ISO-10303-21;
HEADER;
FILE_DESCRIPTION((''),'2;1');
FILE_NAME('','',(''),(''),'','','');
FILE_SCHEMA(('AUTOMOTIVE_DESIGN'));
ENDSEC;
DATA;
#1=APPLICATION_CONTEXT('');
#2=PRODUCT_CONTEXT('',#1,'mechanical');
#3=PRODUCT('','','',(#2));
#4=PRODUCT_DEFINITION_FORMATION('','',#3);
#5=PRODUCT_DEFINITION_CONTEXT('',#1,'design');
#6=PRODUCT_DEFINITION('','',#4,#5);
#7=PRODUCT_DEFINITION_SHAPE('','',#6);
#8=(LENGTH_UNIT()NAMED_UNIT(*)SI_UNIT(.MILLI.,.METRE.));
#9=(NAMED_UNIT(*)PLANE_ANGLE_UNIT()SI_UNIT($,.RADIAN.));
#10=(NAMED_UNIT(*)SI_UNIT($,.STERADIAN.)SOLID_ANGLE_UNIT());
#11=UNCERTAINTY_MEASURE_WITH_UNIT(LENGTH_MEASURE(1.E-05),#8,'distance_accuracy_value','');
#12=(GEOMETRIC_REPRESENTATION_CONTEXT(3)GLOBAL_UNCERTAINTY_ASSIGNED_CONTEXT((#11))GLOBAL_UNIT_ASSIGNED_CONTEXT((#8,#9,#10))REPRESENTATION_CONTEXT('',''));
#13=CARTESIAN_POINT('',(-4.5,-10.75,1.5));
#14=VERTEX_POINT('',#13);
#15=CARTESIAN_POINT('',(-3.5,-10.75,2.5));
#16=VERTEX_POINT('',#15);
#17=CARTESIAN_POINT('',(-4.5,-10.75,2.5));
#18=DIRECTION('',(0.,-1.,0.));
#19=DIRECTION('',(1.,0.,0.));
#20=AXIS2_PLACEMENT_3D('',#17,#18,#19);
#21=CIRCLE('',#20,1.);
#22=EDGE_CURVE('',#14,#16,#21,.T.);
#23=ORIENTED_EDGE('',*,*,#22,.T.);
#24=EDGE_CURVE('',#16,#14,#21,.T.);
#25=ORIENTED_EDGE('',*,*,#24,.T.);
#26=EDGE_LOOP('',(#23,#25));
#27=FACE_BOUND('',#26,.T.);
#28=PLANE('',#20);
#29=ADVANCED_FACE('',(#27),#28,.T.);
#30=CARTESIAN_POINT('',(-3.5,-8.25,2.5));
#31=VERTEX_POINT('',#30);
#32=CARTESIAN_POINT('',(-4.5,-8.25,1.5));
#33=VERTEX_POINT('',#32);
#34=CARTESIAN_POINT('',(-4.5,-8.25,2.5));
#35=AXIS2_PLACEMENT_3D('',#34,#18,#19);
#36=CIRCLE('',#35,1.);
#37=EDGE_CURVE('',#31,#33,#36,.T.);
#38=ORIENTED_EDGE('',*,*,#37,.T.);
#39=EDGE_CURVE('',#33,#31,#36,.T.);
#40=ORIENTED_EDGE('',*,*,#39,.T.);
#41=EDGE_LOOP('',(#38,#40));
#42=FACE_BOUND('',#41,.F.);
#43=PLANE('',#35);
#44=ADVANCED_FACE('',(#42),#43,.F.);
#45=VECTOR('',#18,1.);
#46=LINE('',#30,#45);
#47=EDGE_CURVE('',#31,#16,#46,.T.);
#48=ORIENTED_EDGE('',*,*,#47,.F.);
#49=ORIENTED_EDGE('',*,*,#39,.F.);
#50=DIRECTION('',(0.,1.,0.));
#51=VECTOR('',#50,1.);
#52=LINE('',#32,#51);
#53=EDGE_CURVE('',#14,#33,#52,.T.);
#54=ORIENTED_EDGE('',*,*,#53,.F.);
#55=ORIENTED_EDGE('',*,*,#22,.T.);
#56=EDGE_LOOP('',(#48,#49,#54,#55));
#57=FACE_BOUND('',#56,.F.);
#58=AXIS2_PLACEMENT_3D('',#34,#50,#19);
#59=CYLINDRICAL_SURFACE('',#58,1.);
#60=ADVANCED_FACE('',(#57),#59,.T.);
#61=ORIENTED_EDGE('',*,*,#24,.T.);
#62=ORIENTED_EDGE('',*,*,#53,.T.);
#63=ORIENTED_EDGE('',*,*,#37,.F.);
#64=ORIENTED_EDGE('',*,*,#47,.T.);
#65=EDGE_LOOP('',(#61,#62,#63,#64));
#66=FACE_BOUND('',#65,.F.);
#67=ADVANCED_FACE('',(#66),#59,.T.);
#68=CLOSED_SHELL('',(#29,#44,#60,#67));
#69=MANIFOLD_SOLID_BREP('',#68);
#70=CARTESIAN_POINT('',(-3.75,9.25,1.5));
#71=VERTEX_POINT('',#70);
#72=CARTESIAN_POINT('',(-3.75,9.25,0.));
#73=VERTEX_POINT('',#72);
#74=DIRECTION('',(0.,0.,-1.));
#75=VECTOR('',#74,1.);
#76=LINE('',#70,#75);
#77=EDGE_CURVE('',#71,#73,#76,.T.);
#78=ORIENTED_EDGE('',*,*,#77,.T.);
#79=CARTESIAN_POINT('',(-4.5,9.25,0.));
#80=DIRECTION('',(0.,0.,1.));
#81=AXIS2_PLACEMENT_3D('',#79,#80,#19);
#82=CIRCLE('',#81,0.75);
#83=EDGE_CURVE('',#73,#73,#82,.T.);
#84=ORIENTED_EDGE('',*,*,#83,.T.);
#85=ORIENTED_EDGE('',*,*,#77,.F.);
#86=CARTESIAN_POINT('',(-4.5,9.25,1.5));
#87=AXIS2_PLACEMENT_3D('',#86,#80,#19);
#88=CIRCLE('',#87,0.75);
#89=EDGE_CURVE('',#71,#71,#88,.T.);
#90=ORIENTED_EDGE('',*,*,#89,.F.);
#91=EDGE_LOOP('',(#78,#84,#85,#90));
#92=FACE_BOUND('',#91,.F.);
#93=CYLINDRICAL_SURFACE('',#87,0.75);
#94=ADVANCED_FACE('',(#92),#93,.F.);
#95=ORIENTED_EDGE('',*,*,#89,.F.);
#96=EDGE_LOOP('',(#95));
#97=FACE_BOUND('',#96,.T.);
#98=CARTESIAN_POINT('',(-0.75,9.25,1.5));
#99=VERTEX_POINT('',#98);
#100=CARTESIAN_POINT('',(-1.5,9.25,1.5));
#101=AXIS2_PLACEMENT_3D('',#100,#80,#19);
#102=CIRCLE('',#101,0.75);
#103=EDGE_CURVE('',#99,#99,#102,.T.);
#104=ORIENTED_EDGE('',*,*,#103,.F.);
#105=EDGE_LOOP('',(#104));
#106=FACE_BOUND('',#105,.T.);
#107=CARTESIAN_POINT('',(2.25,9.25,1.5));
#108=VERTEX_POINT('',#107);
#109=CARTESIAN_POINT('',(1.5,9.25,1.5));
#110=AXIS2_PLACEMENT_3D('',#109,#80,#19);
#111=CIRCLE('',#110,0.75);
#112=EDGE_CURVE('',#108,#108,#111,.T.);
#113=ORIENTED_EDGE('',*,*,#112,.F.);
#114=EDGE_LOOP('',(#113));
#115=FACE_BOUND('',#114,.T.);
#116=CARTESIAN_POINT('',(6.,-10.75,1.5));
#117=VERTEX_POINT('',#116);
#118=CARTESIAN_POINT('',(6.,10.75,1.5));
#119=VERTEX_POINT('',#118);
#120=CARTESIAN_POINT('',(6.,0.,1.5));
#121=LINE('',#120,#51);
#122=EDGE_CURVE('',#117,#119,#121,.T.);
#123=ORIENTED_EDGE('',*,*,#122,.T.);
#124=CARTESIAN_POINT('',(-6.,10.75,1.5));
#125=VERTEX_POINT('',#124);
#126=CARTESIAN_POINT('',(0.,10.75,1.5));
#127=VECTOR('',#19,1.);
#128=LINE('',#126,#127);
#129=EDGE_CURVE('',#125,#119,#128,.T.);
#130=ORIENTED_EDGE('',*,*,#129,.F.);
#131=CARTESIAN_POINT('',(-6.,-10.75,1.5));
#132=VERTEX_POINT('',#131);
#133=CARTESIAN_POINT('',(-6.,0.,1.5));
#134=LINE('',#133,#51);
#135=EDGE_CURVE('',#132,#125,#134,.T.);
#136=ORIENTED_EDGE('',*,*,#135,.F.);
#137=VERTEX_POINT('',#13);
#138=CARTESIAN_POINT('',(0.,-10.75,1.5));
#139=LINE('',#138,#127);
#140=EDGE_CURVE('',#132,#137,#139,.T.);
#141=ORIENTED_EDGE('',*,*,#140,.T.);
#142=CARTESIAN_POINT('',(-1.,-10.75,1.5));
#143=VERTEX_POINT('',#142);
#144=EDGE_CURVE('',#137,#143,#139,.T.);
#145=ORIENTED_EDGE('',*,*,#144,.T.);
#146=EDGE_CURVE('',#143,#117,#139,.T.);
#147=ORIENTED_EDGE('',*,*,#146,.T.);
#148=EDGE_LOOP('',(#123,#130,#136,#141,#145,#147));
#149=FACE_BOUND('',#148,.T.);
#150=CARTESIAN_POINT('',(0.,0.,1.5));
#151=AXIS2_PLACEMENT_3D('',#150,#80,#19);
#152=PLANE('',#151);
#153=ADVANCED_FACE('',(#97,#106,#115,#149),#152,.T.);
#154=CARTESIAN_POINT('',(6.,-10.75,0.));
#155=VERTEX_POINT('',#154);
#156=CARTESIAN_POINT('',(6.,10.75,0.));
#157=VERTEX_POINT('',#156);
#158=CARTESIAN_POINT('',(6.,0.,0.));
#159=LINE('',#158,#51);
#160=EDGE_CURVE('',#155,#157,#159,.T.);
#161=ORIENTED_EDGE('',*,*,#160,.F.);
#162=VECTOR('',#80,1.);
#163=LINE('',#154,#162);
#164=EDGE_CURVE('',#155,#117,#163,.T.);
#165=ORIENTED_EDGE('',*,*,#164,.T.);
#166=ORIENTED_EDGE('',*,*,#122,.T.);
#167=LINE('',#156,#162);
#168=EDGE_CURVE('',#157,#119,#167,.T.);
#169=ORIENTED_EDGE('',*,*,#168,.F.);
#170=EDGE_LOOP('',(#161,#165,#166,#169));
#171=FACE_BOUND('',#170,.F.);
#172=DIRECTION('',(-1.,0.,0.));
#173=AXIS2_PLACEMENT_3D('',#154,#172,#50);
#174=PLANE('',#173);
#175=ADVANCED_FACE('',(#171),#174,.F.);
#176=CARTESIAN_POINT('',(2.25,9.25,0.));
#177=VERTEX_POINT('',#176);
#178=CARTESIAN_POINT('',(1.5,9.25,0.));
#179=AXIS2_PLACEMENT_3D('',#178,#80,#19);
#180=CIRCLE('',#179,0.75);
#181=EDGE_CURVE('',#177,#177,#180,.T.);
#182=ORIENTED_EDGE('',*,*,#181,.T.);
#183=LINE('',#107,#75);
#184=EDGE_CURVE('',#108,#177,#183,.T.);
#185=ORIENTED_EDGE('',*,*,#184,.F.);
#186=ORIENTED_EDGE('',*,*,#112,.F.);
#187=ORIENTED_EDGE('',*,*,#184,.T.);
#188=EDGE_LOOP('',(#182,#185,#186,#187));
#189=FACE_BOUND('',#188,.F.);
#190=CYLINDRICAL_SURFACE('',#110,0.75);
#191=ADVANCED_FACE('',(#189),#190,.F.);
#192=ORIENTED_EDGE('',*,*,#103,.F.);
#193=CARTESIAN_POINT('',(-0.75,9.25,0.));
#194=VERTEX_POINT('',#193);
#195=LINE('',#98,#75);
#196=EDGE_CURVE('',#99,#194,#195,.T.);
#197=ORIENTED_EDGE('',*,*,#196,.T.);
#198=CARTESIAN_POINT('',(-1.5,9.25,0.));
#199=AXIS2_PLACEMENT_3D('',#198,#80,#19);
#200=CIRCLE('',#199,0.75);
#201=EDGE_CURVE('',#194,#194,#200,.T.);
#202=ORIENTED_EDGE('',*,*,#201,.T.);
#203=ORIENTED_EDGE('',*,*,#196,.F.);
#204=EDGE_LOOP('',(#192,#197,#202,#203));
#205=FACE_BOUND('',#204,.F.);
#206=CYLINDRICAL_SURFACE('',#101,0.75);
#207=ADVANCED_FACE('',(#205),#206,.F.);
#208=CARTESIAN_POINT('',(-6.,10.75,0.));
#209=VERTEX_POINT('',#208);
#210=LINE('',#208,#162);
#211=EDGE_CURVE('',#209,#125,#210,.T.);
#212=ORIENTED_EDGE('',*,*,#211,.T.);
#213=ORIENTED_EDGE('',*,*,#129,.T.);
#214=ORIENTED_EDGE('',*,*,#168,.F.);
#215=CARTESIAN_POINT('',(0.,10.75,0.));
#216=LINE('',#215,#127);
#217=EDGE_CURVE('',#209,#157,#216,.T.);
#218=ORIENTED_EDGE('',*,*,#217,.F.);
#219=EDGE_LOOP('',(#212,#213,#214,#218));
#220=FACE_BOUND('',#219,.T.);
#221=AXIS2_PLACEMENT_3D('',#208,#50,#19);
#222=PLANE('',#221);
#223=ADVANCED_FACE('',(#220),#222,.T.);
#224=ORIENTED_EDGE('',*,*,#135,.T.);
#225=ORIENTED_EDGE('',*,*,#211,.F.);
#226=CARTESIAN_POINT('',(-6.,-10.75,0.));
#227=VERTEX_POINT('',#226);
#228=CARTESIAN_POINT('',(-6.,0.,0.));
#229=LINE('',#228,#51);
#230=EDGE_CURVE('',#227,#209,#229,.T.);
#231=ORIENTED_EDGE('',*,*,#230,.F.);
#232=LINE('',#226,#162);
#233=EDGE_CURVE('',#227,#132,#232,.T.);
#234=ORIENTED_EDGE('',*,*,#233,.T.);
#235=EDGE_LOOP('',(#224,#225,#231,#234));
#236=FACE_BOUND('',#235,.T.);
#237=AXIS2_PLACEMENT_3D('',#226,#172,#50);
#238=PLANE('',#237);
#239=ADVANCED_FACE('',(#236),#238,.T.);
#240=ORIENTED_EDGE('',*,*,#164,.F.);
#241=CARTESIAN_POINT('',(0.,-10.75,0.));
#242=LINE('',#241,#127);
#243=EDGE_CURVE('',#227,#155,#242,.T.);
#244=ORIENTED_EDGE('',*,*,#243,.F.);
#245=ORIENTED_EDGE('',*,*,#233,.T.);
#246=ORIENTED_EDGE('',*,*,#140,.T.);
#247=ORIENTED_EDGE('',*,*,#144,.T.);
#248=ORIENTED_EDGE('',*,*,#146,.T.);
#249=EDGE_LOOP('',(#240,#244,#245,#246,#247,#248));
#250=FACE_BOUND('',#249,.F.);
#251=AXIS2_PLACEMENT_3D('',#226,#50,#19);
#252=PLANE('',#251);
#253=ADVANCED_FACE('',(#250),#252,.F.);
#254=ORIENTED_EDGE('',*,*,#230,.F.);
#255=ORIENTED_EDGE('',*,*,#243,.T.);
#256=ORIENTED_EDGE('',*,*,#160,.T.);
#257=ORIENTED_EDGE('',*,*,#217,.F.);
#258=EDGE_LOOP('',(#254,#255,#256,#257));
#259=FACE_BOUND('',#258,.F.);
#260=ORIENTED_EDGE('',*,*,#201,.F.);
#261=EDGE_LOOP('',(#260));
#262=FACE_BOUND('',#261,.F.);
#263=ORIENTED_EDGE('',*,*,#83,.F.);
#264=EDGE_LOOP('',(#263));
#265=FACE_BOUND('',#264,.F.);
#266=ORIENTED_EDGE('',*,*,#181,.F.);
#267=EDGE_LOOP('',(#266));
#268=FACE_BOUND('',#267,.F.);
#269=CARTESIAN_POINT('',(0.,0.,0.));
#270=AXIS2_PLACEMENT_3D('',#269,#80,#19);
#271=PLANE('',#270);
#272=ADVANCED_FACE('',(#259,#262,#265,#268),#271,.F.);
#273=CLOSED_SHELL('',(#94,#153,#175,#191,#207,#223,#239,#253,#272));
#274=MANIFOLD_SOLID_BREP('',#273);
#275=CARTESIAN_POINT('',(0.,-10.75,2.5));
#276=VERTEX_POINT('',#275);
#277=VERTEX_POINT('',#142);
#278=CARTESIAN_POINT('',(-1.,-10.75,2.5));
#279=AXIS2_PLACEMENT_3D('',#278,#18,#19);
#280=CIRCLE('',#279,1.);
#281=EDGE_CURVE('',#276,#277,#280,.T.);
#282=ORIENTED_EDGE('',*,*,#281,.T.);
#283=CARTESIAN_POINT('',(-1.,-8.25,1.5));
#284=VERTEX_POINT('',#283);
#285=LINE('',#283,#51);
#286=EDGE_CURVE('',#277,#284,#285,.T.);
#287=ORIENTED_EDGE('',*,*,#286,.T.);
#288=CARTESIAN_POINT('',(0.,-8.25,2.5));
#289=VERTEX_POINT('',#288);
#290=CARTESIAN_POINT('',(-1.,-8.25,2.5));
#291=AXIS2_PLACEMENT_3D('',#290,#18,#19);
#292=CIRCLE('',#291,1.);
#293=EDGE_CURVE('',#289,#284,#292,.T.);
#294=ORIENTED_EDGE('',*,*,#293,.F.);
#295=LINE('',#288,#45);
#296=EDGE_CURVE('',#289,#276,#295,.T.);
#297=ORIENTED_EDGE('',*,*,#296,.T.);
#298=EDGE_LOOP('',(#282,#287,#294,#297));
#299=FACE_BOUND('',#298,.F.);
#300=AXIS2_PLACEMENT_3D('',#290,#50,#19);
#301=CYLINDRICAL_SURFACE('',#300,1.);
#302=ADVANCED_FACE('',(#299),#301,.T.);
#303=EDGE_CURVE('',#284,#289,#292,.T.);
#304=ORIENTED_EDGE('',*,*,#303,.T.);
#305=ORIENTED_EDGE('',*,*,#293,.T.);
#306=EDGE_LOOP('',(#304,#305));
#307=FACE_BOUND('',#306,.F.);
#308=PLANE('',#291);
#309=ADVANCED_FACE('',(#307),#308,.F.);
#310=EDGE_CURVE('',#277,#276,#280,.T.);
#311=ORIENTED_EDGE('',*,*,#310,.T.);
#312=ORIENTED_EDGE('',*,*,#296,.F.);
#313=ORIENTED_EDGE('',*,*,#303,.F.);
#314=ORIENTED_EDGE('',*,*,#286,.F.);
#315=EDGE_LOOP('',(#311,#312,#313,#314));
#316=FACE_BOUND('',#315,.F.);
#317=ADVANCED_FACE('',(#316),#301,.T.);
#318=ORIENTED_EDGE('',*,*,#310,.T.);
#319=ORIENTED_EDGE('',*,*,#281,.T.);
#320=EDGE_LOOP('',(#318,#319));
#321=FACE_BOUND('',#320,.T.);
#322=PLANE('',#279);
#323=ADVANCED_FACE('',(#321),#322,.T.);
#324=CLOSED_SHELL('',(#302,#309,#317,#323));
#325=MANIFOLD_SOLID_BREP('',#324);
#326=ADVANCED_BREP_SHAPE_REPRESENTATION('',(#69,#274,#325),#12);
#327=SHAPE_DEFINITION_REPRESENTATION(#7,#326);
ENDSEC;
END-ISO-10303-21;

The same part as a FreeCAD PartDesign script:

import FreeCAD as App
import Part
import Sketcher
from FreeCAD import Vector


def add_polygon(sketch, points):
    """Adds a closed chain of lines whose ends are joined by coincident constraints."""
    first, n = sketch.GeometryCount, len(points)
    for a, b in zip(points, points[1:] + points[:1]):
        sketch.addGeometry(Part.LineSegment(App.Vector(*a, 0), App.Vector(*b, 0)), False)
    for i in range(n):
        sketch.addConstraint(Sketcher.Constraint("Coincident", first + i, 2, first + (i + 1) % n, 1))

doc = App.newDocument("Part")
body = doc.addObject("PartDesign::Body", "Body")
body.AllowCompound = True

# Sketch on XY plane
sketch1 = body.newObject("Sketcher::SketchObject", "Sketch")
sketch1.AttachmentSupport = (doc.getObject("XY_Plane"), [""])
sketch1.MapMode = "FlatFace"
add_polygon(sketch1, [(-6, 10.75), (-6, -10.75), (6, -10.75), (6, 10.75)])  # lines 0-3
sketch1.addConstraint([
    Sketcher.Constraint("Vertical", 0),
    Sketcher.Constraint("Horizontal", 1),
    Sketcher.Constraint("Vertical", 2),
    Sketcher.Constraint("Horizontal", 3),
    Sketcher.Constraint("Symmetric", 0, 2, 2, 2, -1, 1),
    Sketcher.Constraint("DistanceX", 1, 1, 1, 2, 12.0),
    Sketcher.Constraint("DistanceY", 0, 2, 0, 1, 21.5),
])
pad1 = body.newObject("PartDesign::Pad", "Pad")
pad1.Profile = sketch1
pad1.Length = 1.5

# Sketch on XZ plane
sketch2 = body.newObject("Sketcher::SketchObject", "Sketch001")
sketch2.AttachmentSupport = (doc.getObject("XZ_Plane"), [""])
sketch2.MapMode = "FlatFace"
sketch2.AttachmentOffset = App.Placement(Vector(0, 0, 8.25), App.Rotation())
sketch2.addGeometry([
    Part.Circle(Vector(-4.5, 2.5, 0), Vector(0, 0, 1), 1),
    Part.Circle(Vector(-1, 2.5, 0), Vector(0, 0, 1), 1),
], False)
sketch2.addConstraint([
    Sketcher.Constraint("Equal", 0, 1),
    Sketcher.Constraint("Horizontal", 0, 3, 1, 3),
    Sketcher.Constraint("Diameter", 0, 2.0),
    Sketcher.Constraint("DistanceX", 1, 3, -1, 1, 1.0),
    Sketcher.Constraint("DistanceX", 0, 3, -1, 1, 4.5),
    Sketcher.Constraint("DistanceY", -1, 1, 0, 3, 2.5),
])
pad2 = body.newObject("PartDesign::Pad", "Pad001")
pad2.Profile = sketch2
pad2.Length = 2.5

# Sketch on XY plane
sketch3 = body.newObject("Sketcher::SketchObject", "Sketch002")
sketch3.AttachmentSupport = (doc.getObject("XY_Plane"), [""])
sketch3.MapMode = "FlatFace"
sketch3.AttachmentOffset = App.Placement(Vector(0, 0, 1.5), App.Rotation())
sketch3.addGeometry([
    Part.Circle(Vector(-4.5, 9.25, 0), Vector(0, 0, 1), 0.75),
    Part.Circle(Vector(-1.5, 9.25, 0), Vector(0, 0, 1), 0.75),
    Part.Circle(Vector(1.5, 9.25, 0), Vector(0, 0, 1), 0.75),
], False)
sketch3.addConstraint([
    Sketcher.Constraint("Equal", 0, 1),
    Sketcher.Constraint("Equal", 1, 2),
    Sketcher.Constraint("Symmetric", 1, 3, 2, 3, -2),
    Sketcher.Constraint("Horizontal", 0, 3, 1, 3),
    Sketcher.Constraint("Diameter", 0, 1.5),
    Sketcher.Constraint("DistanceX", 0, 3, 1, 3, 3.0),
    Sketcher.Constraint("DistanceX", 1, 3, 2, 3, 3.0),
    Sketcher.Constraint("DistanceY", -1, 1, 0, 3, 9.25),
])
pocket1 = body.newObject("PartDesign::Pocket", "Pocket")
pocket1.Profile = sketch3
pocket1.Type = "ThroughAll"

doc.recompute()
